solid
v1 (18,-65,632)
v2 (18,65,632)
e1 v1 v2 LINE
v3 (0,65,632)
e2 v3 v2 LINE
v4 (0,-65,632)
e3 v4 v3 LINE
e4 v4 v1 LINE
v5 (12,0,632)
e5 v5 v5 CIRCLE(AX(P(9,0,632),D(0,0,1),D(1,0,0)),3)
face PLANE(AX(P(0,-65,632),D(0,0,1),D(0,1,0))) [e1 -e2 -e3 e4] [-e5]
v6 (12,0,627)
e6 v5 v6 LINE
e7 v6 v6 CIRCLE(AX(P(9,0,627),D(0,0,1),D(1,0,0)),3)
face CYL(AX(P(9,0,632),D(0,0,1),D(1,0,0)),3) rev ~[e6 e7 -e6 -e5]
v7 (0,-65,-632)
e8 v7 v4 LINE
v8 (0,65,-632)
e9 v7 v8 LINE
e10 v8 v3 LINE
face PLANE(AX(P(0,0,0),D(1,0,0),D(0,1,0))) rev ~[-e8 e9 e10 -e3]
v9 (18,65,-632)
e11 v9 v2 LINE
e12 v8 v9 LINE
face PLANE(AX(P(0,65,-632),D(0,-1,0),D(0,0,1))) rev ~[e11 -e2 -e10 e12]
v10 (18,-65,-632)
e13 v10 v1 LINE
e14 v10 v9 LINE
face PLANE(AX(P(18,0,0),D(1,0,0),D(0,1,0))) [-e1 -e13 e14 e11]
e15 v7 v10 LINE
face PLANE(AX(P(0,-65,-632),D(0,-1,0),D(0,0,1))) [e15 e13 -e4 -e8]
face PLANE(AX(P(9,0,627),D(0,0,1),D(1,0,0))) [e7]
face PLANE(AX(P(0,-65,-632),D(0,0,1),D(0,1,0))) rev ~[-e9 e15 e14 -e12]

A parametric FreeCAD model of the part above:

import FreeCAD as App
import Part
import Sketcher

V = App.Vector


def add_polygon(sketch, points):
    """Adds a closed chain of lines whose ends are joined by coincident constraints."""
    first, n = sketch.GeometryCount, len(points)
    for a, b in zip(points, points[1:] + points[:1]):
        sketch.addGeometry(Part.LineSegment(App.Vector(*a, 0), App.Vector(*b, 0)), False)
    for i in range(n):
        sketch.addConstraint(Sketcher.Constraint("Coincident", first + i, 2, first + (i + 1) % n, 1))

doc = App.newDocument("Part")
params = doc.addObject("Spreadsheet::Sheet", "Params")
for row, (alias, value) in enumerate([
    ("sketch1_width", "130 mm"),
    ("sketch1_height", "1264 mm"),
    ("pad1_length", "18 mm"),
    ("sketch2_diameter", "6 mm"),
    ("pocket1_length", "5 mm"),
], start=1):
    params.set(f"A{row}", alias)
    params.set(f"B{row}", "=" + value)
    params.setAlias(f"B{row}", alias)

body = doc.addObject("PartDesign::Body", "Body")

# Sketch on YZ plane
sketch1 = body.newObject("Sketcher::SketchObject", "Sketch")
sketch1.AttachmentSupport = (doc.getObject("YZ_Plane"), [""])
sketch1.MapMode = "FlatFace"
add_polygon(sketch1, [(-65, 632), (-65, -632), (65, -632), (65, 632)])  # lines 0-3
sketch1.addConstraint([
    Sketcher.Constraint("Vertical", 0),
    Sketcher.Constraint("Horizontal", 1),
    Sketcher.Constraint("Vertical", 2),
    Sketcher.Constraint("Horizontal", 3),
    Sketcher.Constraint("Symmetric", 0, 2, 2, 2, -1, 1),
    Sketcher.Constraint("DistanceX", 1, 1, 1, 2, 130.0),
    Sketcher.Constraint("DistanceY", 0, 2, 0, 1, 1264.0),
])
sketch1.setExpression("Constraints[9]", "Params.sketch1_width")
sketch1.setExpression("Constraints[10]", "Params.sketch1_height")
pad1 = body.newObject("PartDesign::Pad", "Pad")
pad1.Profile = sketch1
pad1.setExpression("Length", "Params.pad1_length")

# Sketch on XY plane
sketch2 = body.newObject("Sketcher::SketchObject", "Sketch001")
sketch2.AttachmentSupport = (doc.getObject("XY_Plane"), [""])
sketch2.MapMode = "FlatFace"
sketch2.AttachmentOffset = App.Placement(V(0, 0, 632), App.Rotation())
sketch2.addGeometry(Part.Circle(V(9, 0, 0), V(0, 0, 1), 3), False)
sketch2.addConstraint([
    Sketcher.Constraint("PointOnObject", 0, 3, -1),
    Sketcher.Constraint("Diameter", 0, 6.0),
    Sketcher.Constraint("DistanceX", -1, 1, 0, 3, 9.0),
])
sketch2.setExpression("Constraints[1]", "Params.sketch2_diameter")
pocket1 = body.newObject("PartDesign::Pocket", "Pocket")
pocket1.Profile = sketch2
pocket1.setExpression("Length", "Params.pocket1_length")

doc.recompute()
